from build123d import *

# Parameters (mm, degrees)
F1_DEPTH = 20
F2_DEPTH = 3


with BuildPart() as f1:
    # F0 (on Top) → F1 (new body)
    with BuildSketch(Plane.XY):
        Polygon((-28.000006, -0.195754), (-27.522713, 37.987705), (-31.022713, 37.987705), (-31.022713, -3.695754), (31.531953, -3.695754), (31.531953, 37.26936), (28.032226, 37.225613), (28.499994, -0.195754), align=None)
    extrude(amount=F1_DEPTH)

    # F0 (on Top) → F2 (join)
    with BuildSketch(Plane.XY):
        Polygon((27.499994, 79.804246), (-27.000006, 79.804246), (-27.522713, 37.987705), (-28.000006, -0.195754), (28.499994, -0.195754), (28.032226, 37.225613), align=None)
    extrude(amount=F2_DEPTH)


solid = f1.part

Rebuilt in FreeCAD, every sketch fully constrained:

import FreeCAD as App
import Part
import Sketcher
from FreeCAD import Vector
Q = App.Units.Quantity


def add_polygon(sketch, points):
    """Adds a closed chain of lines whose ends are joined by coincident constraints."""
    first, n = sketch.GeometryCount, len(points)
    for a, b in zip(points, points[1:] + points[:1]):
        sketch.addGeometry(Part.LineSegment(App.Vector(*a, 0), App.Vector(*b, 0)), False)
    for i in range(n):
        sketch.addConstraint(Sketcher.Constraint("Coincident", first + i, 2, first + (i + 1) % n, 1))

doc = App.newDocument("Part")
params = doc.addObject("Spreadsheet::Sheet", "Params")
for row, (alias, value) in enumerate([
    ("sketch1_width", "3.5 mm"),
    ("sketch1_width2", "56.5 mm"),
    ("sketch1_length", "3.5 mm"),
    ("pad1_length", "20 mm"),
    ("sketch2_width", "54.5 mm"),
    ("sketch2_width2", "56.5 mm"),
    ("pad2_length", "3 mm"),
], start=1):
    params.set(f"A{row}", alias)
    params.set(f"B{row}", "=" + value)
    params.setAlias(f"B{row}", alias)

body = doc.addObject("PartDesign::Body", "Body")

sketch1 = body.newObject("Sketcher::SketchObject", "Sketch")
sketch1.AttachmentSupport = (doc.getObject("XY_Plane"), [""])
sketch1.MapMode = "FlatFace"
add_polygon(sketch1, [(-28.000006, -0.195754), (-27.522713, 37.987705), (-31.022713, 37.987705), (-31.022713, -3.695754), (31.531953, -3.695754), (31.531953, 37.26936), (28.032226, 37.225613), (28.499994, -0.195754)])
sketch1.addConstraint(Sketcher.Constraint("Horizontal", 1))
sketch1.addConstraint(Sketcher.Constraint("Vertical", 2))
sketch1.addConstraint(Sketcher.Constraint("Horizontal", 3))
sketch1.addConstraint(Sketcher.Constraint("Vertical", 4))
sketch1.addConstraint(Sketcher.Constraint("Horizontal", 7))
sketch1.addConstraint(Sketcher.Constraint("Perpendicular", 5, 6))
sketch1.addConstraint(Sketcher.Constraint("DistanceX", 1, 2, 1, 1, Q("3.5 mm")))
sketch1.addConstraint(Sketcher.Constraint("DistanceX", 7, 2, 7, 1, Q("56.5 mm")))
sketch1.addConstraint(Sketcher.Constraint("Distance", 5, Q("3.5 mm")))
sketch1.addConstraint(Sketcher.Constraint("DistanceY", 3, 2, 6, 2, Q("3.5 mm")))
sketch1.addConstraint(Sketcher.Constraint("DistanceY", 2, 2, 2, 1, Q("41.683459 mm")))
sketch1.addConstraint(Sketcher.Constraint("Distance", 0, Q("38.186442 mm")))
sketch1.addConstraint(Sketcher.Constraint("Distance", 6, Q("37.42429 mm")))
sketch1.addConstraint(Sketcher.Constraint("DistanceX", 3, 1, 3, 2, Q("62.554666 mm")))
sketch1.addConstraint(Sketcher.Constraint("DistanceY", -1, 1, 4, 2, Q("37.26936 mm")))
sketch1.addConstraint(Sketcher.Constraint("DistanceX", 0, 2, -1, 1, Q("27.522713 mm")))
sketch1.setExpression("Constraints[14]", "Params.sketch1_width")
sketch1.setExpression("Constraints[15]", "Params.sketch1_width2")
sketch1.setExpression("Constraints[16]", "Params.sketch1_length")
pad1 = body.newObject("PartDesign::Pad", "Pad")
pad1.Profile = sketch1
pad1.setExpression("Length", "Params.pad1_length")

sketch2 = body.newObject("Sketcher::SketchObject", "Sketch001")
sketch2.AttachmentSupport = (doc.getObject("XY_Plane"), [""])
sketch2.MapMode = "FlatFace"
add_polygon(sketch2, [(27.499994, 79.804246), (-27.000006, 79.804246), (-27.522713, 37.987705), (-28.000006, -0.195754), (28.499994, -0.195754), (28.032226, 37.225613)])
sketch2.addConstraint(Sketcher.Constraint("Horizontal", 0))
sketch2.addConstraint(Sketcher.Constraint("Horizontal", 3))
sketch2.addConstraint(Sketcher.Constraint("Parallel", 1, 2))
sketch2.addConstraint(Sketcher.Constraint("Parallel", 4, 5))
sketch2.addConstraint(Sketcher.Constraint("DistanceX", 0, 2, 0, 1, Q("54.5 mm")))
sketch2.addConstraint(Sketcher.Constraint("DistanceX", 3, 1, 3, 2, Q("56.5 mm")))
sketch2.addConstraint(Sketcher.Constraint("DistanceX", 2, 2, 0, 2, Q("1 mm")))
sketch2.addConstraint(Sketcher.Constraint("DistanceY", 2, 2, 0, 2, Q("80 mm")))
sketch2.addConstraint(Sketcher.Constraint("Distance", 2, Q("38.186442 mm")))
sketch2.addConstraint(Sketcher.Constraint("Distance", 4, Q("37.42429 mm")))
sketch2.addConstraint(Sketcher.Constraint("DistanceX", 0, 2, -1, 1, Q("27.000006 mm")))
sketch2.addConstraint(Sketcher.Constraint("DistanceY", -1, 1, 0, 2, Q("79.804246 mm")))
sketch2.setExpression("Constraints[10]", "Params.sketch2_width")
sketch2.setExpression("Constraints[11]", "Params.sketch2_width2")
pad2 = body.newObject("PartDesign::Pad", "Pad001")
pad2.Profile = sketch2
pad2.setExpression("Length", "Params.pad2_length")

doc.recompute()
